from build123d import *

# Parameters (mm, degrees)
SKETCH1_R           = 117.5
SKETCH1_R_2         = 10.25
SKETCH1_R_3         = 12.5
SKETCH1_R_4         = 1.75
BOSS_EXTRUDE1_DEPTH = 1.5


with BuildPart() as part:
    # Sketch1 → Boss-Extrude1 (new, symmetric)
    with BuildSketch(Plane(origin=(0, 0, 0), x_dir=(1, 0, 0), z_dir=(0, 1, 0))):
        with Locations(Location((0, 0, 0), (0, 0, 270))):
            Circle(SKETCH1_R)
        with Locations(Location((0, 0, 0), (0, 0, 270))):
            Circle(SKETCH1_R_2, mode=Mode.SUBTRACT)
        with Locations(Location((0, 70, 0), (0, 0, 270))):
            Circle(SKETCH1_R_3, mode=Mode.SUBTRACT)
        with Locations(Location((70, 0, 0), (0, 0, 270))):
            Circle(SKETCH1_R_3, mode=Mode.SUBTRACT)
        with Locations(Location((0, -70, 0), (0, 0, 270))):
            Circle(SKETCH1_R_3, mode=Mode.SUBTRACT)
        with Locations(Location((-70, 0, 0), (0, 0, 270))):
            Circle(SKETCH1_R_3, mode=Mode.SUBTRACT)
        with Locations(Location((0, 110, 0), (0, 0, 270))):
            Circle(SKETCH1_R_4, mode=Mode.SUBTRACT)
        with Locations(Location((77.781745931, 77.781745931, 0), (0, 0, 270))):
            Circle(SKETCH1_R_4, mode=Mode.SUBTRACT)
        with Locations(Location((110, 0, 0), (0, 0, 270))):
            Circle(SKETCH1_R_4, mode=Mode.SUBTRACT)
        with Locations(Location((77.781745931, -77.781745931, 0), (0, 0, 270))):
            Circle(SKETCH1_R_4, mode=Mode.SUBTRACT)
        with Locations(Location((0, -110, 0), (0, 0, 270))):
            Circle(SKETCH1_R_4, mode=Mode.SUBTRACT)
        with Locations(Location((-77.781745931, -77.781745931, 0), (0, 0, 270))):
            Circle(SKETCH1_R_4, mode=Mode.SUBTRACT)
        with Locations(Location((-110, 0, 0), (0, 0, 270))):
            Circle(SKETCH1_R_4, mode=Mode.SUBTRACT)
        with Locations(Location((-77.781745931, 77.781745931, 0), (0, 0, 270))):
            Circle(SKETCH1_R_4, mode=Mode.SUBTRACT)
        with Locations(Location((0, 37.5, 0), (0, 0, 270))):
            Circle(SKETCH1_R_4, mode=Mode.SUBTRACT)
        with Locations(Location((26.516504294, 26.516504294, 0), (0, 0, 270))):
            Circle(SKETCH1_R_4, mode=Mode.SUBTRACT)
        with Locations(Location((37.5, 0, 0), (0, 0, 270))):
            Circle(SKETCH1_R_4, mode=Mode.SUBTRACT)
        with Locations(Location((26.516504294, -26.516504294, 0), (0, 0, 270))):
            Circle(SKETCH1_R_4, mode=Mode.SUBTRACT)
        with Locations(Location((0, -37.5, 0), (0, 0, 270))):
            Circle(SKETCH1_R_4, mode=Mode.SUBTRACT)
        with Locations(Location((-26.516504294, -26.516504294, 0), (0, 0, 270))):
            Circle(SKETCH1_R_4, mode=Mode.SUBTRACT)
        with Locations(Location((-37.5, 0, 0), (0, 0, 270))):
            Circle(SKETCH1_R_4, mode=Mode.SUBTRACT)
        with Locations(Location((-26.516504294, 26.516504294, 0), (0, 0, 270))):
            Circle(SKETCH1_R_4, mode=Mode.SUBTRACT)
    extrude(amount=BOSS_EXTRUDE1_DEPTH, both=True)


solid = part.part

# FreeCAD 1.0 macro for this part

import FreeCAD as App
import Part
import Sketcher

doc = App.newDocument("Part")
body = doc.addObject("PartDesign::Body", "Body")

# Sketch on XZ plane
sketch1 = body.newObject("Sketcher::SketchObject", "Sketch")
sketch1.AttachmentSupport = (doc.getObject("XZ_Plane"), [""])
sketch1.MapMode = "FlatFace"
sketch1.addGeometry([
    Part.Circle(App.Vector(0, 0, 0), App.Vector(0, 0, 1), 117.5),  # 0
    Part.Circle(App.Vector(-77.781746, -77.781746, 0), App.Vector(0, 0, 1), 1.75),  # 1
    Part.Circle(App.Vector(0, -110, 0), App.Vector(0, 0, 1), 1.75),  # 2
    Part.Circle(App.Vector(0, -70, 0), App.Vector(0, 0, 1), 12.5),  # 3
    Part.Circle(App.Vector(-26.516504, -26.516504, 0), App.Vector(0, 0, 1), 1.75),  # 4
    Part.Circle(App.Vector(-110, 0, 0), App.Vector(0, 0, 1), 1.75),  # 5
    Part.Circle(App.Vector(-70, 0, 0), App.Vector(0, 0, 1), 12.5),  # 6
    Part.Circle(App.Vector(-77.781746, 77.781746, 0), App.Vector(0, 0, 1), 1.75),  # 7
    Part.Circle(App.Vector(-37.5, 0, 0), App.Vector(0, 0, 1), 1.75),  # 8
    Part.Circle(App.Vector(-26.516504, 26.516504, 0), App.Vector(0, 0, 1), 1.75),  # 9
    Part.Circle(App.Vector(0, -37.5, 0), App.Vector(0, 0, 1), 1.75),  # 10
    Part.Circle(App.Vector(26.516504, -26.516504, 0), App.Vector(0, 0, 1), 1.75),  # 11
    Part.Circle(App.Vector(77.781746, -77.781746, 0), App.Vector(0, 0, 1), 1.75),  # 12
    Part.Circle(App.Vector(70, 0, 0), App.Vector(0, 0, 1), 12.5),  # 13
    Part.Circle(App.Vector(110, 0, 0), App.Vector(0, 0, 1), 1.75),  # 14
    Part.Circle(App.Vector(0, 0, 0), App.Vector(0, 0, 1), 10.25),  # 15
    Part.Circle(App.Vector(26.516504, 26.516504, 0), App.Vector(0, 0, 1), 1.75),  # 16
    Part.Circle(App.Vector(0, 37.5, 0), App.Vector(0, 0, 1), 1.75),  # 17
    Part.Circle(App.Vector(37.5, 0, 0), App.Vector(0, 0, 1), 1.75),  # 18
    Part.Circle(App.Vector(0, 70, 0), App.Vector(0, 0, 1), 12.5),  # 19
    Part.Circle(App.Vector(0, 110, 0), App.Vector(0, 0, 1), 1.75),  # 20
    Part.Circle(App.Vector(77.781746, 77.781746, 0), App.Vector(0, 0, 1), 1.75),  # 21
], False)
sketch1.addConstraint([
    Sketcher.Constraint("Coincident", 0, 3, -1, 1),
    Sketcher.Constraint("Coincident", 15, 3, -1, 1),
    Sketcher.Constraint("Equal", 1, 2),
    Sketcher.Constraint("Equal", 2, 4),
    Sketcher.Constraint("Equal", 4, 5),
    Sketcher.Constraint("Equal", 3, 6),
    Sketcher.Constraint("Equal", 5, 7),
    Sketcher.Constraint("Equal", 7, 8),
    Sketcher.Constraint("Equal", 8, 9),
    Sketcher.Constraint("Equal", 9, 10),
    Sketcher.Constraint("Equal", 10, 11),
    Sketcher.Constraint("Equal", 11, 12),
    Sketcher.Constraint("Equal", 6, 13),
    Sketcher.Constraint("Equal", 12, 14),
    Sketcher.Constraint("Equal", 14, 16),
    Sketcher.Constraint("Equal", 16, 17),
    Sketcher.Constraint("Equal", 17, 18),
    Sketcher.Constraint("Equal", 13, 19),
    Sketcher.Constraint("Equal", 18, 20),
    Sketcher.Constraint("Equal", 20, 21),
    Sketcher.Constraint("Symmetric", 9, 3, 11, 3, -1, 1),
    Sketcher.Constraint("Symmetric", 7, 3, 12, 3, -1, 1),
    Sketcher.Constraint("Symmetric", 6, 3, 13, 3, -1, 1),
    Sketcher.Constraint("Symmetric", 5, 3, 14, 3, -1, 1),
    Sketcher.Constraint("Symmetric", 4, 3, 16, 3, -1, 1),
    Sketcher.Constraint("Symmetric", 10, 3, 17, 3, -1, 1),
    Sketcher.Constraint("Symmetric", 8, 3, 18, 3, -1, 1),
    Sketcher.Constraint("Symmetric", 3, 3, 19, 3, -1, 1),
    Sketcher.Constraint("Symmetric", 2, 3, 20, 3, -1, 1),
    Sketcher.Constraint("Symmetric", 1, 3, 21, 3, -1, 1),
    Sketcher.Constraint("Symmetric", 4, 3, 11, 3, -2),
    Sketcher.Constraint("Symmetric", 1, 3, 12, 3, -2),
    Sketcher.Constraint("PointOnObject", 2, 3, -2),
    Sketcher.Constraint("PointOnObject", 3, 3, -2),
    Sketcher.Constraint("PointOnObject", 5, 3, -1),
    Sketcher.Constraint("PointOnObject", 6, 3, -1),
    Sketcher.Constraint("PointOnObject", 8, 3, -1),
    Sketcher.Constraint("PointOnObject", 10, 3, -2),
    Sketcher.Constraint("Diameter", 0, 235.0),
    Sketcher.Constraint("Diameter", 3, 25.0),
    Sketcher.Constraint("Diameter", 1, 3.5),
    Sketcher.Constraint("Diameter", 15, 20.5),
    Sketcher.Constraint("DistanceY", 2, 3, -1, 1, 110.0),
    Sketcher.Constraint("DistanceY", 3, 3, -1, 1, 70.0),
    Sketcher.Constraint("DistanceX", 5, 3, -1, 1, 110.0),
    Sketcher.Constraint("DistanceX", 6, 3, -1, 1, 70.0),
    Sketcher.Constraint("DistanceX", 8, 3, -1, 1, 37.5),
    Sketcher.Constraint("DistanceY", 10, 3, -1, 1, 37.5),
    Sketcher.Constraint("DistanceX", 1, 3, 4, 3, 51.265242),
    Sketcher.Constraint("DistanceY", 1, 3, 4, 3, 51.265242),
    Sketcher.Constraint("DistanceY", 4, 3, 7, 3, 104.29825),
    Sketcher.Constraint("DistanceX", 4, 3, 11, 3, 53.033009),
])
pad1 = body.newObject("PartDesign::Pad", "Pad")
pad1.Profile = sketch1
pad1.Length = 3
pad1.Midplane = True

doc.recompute()
